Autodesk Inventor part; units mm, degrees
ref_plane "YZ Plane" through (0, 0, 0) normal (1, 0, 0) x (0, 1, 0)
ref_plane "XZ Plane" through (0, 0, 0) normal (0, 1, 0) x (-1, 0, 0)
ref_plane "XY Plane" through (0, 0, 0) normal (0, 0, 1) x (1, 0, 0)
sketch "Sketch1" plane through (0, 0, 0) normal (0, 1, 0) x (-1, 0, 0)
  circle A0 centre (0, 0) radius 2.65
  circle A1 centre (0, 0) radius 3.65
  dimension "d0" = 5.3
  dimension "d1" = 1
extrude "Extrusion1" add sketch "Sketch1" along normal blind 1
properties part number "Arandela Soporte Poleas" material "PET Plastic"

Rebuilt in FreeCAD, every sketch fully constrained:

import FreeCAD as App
import Part
import Sketcher

V = App.Vector
Q = App.Units.Quantity

doc = App.newDocument("Part")
body = doc.addObject("PartDesign::Body", "Body")

sketch1 = body.newObject("Sketcher::SketchObject", "Sketch")
sketch1.AttachmentSupport = (doc.getObject("XZ_Plane"), [""])
sketch1.MapMode = "FlatFace"
sketch1.addGeometry([
    Part.Circle(V(0, 0, 0), V(0, 0, 1), 3.65),
    Part.Circle(V(0, 0, 0), V(0, 0, 1), 2.65),
], False)
sketch1.addConstraint([
    Sketcher.Constraint("Coincident", 0, 3, -1, 1),
    Sketcher.Constraint("Coincident", 1, 3, -1, 1),
    Sketcher.Constraint("Diameter", 1, Q("5.3 mm")),
    Sketcher.Constraint("Diameter", 0, Q("7.3 mm")),
])
pad1 = body.newObject("PartDesign::Pad", "Pad")
pad1.Profile = sketch1
pad1.Length = 1
pad1.Reversed = True

doc.recompute()
